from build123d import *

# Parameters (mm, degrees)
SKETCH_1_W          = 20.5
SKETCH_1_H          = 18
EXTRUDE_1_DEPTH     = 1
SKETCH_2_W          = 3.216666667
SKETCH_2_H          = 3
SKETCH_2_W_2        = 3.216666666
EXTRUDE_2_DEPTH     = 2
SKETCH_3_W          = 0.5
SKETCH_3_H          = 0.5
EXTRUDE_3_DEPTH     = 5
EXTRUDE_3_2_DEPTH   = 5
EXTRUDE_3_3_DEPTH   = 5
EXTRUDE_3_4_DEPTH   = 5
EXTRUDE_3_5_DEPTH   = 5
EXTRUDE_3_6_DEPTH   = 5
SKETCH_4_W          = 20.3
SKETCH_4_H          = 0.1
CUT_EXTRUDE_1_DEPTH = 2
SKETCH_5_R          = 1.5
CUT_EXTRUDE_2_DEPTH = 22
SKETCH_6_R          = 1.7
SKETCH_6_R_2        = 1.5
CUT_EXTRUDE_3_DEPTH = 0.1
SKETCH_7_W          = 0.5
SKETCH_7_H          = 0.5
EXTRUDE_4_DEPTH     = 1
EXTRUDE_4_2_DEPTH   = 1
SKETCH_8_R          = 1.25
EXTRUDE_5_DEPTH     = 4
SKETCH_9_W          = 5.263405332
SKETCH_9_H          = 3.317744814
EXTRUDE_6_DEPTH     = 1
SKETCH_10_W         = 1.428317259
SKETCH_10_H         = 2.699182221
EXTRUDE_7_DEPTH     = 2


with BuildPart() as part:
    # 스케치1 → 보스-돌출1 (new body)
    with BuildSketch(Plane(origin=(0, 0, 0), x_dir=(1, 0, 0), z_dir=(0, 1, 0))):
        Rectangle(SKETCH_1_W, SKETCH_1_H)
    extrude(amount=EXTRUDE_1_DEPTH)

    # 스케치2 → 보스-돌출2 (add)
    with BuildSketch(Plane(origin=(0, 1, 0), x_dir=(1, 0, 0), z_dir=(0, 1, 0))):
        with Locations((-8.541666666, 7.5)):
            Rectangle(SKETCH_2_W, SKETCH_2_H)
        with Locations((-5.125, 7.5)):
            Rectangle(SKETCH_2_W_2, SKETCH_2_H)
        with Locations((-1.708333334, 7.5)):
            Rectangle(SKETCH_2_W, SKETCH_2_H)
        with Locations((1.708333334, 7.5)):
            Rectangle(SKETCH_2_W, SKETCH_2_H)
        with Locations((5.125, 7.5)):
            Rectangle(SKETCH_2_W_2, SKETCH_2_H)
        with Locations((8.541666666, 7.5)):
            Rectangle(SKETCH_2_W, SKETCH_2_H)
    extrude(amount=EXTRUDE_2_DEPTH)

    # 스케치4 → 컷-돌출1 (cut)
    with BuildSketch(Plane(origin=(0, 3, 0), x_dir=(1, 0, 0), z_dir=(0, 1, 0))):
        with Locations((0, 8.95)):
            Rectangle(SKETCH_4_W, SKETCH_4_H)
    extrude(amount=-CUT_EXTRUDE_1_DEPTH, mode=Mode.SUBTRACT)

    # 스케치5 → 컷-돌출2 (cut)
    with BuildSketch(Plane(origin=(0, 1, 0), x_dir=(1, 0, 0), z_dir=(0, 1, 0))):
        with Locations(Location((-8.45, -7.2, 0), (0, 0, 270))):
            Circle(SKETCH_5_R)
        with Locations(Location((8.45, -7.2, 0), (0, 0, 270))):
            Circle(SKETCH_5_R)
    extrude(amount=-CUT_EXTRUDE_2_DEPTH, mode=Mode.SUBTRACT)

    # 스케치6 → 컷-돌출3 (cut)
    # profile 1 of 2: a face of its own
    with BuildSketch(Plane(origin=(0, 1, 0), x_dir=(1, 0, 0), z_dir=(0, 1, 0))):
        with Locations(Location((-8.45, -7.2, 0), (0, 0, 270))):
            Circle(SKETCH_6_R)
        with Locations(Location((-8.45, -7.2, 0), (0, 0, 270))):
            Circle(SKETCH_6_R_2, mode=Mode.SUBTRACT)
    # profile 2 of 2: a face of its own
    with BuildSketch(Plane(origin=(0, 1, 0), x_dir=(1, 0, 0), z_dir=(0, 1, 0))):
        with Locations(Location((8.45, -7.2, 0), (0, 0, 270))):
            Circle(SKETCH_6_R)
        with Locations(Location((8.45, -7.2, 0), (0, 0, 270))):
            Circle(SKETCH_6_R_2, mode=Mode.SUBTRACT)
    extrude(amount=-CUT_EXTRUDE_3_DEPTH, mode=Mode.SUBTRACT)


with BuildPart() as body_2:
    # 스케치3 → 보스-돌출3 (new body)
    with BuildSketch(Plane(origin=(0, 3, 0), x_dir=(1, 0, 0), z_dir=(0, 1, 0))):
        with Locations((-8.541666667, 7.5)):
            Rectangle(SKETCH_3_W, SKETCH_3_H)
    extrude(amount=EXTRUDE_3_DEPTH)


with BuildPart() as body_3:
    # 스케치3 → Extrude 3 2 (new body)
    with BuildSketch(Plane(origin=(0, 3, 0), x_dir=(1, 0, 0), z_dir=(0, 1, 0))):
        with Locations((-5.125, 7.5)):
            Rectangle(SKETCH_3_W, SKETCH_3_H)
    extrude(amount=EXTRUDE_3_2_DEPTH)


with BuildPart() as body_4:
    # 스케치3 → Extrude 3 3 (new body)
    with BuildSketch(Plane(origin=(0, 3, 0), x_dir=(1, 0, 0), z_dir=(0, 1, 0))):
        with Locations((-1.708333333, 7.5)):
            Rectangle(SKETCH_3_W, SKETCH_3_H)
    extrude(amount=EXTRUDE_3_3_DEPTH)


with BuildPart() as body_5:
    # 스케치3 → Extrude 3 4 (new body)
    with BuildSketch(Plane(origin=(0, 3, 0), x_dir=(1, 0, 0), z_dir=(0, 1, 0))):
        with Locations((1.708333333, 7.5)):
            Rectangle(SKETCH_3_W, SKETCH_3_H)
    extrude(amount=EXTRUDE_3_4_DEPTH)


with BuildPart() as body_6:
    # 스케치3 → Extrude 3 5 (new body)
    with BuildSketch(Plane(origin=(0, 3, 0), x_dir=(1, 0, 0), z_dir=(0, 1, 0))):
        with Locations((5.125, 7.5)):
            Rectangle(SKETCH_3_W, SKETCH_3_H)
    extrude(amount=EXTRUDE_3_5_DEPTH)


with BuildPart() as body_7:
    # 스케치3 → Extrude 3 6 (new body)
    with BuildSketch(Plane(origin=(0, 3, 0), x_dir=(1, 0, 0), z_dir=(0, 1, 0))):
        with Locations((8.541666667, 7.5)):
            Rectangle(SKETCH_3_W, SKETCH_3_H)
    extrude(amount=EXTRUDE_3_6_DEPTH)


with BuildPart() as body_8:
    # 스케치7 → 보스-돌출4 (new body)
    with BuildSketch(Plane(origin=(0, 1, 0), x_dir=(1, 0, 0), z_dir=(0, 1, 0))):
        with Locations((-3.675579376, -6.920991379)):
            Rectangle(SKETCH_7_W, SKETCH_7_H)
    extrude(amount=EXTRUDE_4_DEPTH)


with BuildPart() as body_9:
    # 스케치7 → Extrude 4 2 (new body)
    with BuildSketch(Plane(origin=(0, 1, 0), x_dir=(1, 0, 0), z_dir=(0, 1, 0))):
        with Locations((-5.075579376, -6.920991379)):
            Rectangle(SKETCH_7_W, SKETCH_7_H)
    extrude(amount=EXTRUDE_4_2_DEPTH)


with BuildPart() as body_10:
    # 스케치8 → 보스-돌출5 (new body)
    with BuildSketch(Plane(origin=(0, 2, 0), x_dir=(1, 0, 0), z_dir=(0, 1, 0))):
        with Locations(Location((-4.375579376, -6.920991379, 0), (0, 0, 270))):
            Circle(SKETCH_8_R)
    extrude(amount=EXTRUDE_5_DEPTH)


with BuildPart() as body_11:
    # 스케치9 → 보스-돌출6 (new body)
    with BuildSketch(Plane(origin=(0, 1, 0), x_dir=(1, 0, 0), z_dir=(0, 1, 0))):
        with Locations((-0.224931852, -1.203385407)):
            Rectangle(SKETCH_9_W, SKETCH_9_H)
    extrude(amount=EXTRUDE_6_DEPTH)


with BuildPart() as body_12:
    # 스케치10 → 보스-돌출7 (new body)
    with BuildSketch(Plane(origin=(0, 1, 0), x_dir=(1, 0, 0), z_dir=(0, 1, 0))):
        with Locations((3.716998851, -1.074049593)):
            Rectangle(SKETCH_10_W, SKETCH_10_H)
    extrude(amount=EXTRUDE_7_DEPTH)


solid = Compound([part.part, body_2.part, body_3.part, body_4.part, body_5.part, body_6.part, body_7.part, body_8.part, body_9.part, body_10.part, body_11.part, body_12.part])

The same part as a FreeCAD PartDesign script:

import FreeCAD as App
import Part
import Sketcher
from FreeCAD import Vector
Q = App.Units.Quantity


def add_polygon(sketch, points):
    """Adds a closed chain of lines whose ends are joined by coincident constraints."""
    first, n = sketch.GeometryCount, len(points)
    for a, b in zip(points, points[1:] + points[:1]):
        sketch.addGeometry(Part.LineSegment(App.Vector(*a, 0), App.Vector(*b, 0)), False)
    for i in range(n):
        sketch.addConstraint(Sketcher.Constraint("Coincident", first + i, 2, first + (i + 1) % n, 1))

doc = App.newDocument("Part")
body = doc.addObject("PartDesign::Body", "Body")

# Sketch on XZ plane
sketch1 = body.newObject("Sketcher::SketchObject", "Sketch")
sketch1.AttachmentSupport = (doc.getObject("XZ_Plane"), [""])
sketch1.MapMode = "FlatFace"
add_polygon(sketch1, [(-10, -9), (-10, 9), (10, 9), (10, -9)])  # lines 0-3
sketch1.addConstraint(Sketcher.Constraint("Vertical", 0))
sketch1.addConstraint(Sketcher.Constraint("Horizontal", 1))
sketch1.addConstraint(Sketcher.Constraint("Vertical", 2))
sketch1.addConstraint(Sketcher.Constraint("Horizontal", 3))
sketch1.addConstraint(Sketcher.Constraint("Symmetric", 0, 2, 2, 2, -1, 1))
sketch1.addConstraint(Sketcher.Constraint("DistanceY", 0, 1, 0, 2, Q("18 mm")))
sketch1.addConstraint(Sketcher.Constraint("DistanceX", 1, 1, 1, 2, Q("20.5 mm")))
pad1 = body.newObject("PartDesign::Pad", "Pad")
pad1.Profile = sketch1
pad1.Length = 1
pad1.Reversed = True

# Sketch on XZ plane
sketch2 = body.newObject("Sketcher::SketchObject", "Sketch001")
sketch2.AttachmentSupport = (doc.getObject("XZ_Plane"), [""])
sketch2.MapMode = "FlatFace"
sketch2.AttachmentOffset = App.Placement(Vector(0, 0, -1), App.Rotation())
add_polygon(sketch2, [(-10.2, -9), (-10.2, -6), (-6.9, -6), (-6.9, -9)])  # lines 0-3
add_polygon(sketch2, [(-6.7, -9), (-6.7, -6), (-3.5, -6), (-3.5, -9)])  # lines 4-7
add_polygon(sketch2, [(-3.3, -9), (-3.3, -6), (-0.1, -6), (-0.1, -9)])  # lines 8-11
add_polygon(sketch2, [(0.1, -9), (0.1, -6), (3.3, -6), (3.3, -9)])  # lines 12-15
add_polygon(sketch2, [(3.5, -9), (3.5, -6), (6.7, -6), (6.7, -9)])  # lines 16-19
add_polygon(sketch2, [(6.9, -9), (6.9, -6), (10.2, -6), (10.2, -9)])  # lines 20-23
sketch2.addConstraint(Sketcher.Constraint("Vertical", 0))
sketch2.addConstraint(Sketcher.Constraint("Horizontal", 1))
sketch2.addConstraint(Sketcher.Constraint("Vertical", 2))
sketch2.addConstraint(Sketcher.Constraint("Horizontal", 3))
sketch2.addConstraint(Sketcher.Constraint("Vertical", 4))
sketch2.addConstraint(Sketcher.Constraint("Horizontal", 5))
sketch2.addConstraint(Sketcher.Constraint("Vertical", 6))
sketch2.addConstraint(Sketcher.Constraint("Horizontal", 7))
sketch2.addConstraint(Sketcher.Constraint("Vertical", 8))
sketch2.addConstraint(Sketcher.Constraint("Horizontal", 9))
sketch2.addConstraint(Sketcher.Constraint("Vertical", 10))
sketch2.addConstraint(Sketcher.Constraint("Horizontal", 11))
sketch2.addConstraint(Sketcher.Constraint("Vertical", 12))
sketch2.addConstraint(Sketcher.Constraint("Horizontal", 13))
sketch2.addConstraint(Sketcher.Constraint("Vertical", 14))
sketch2.addConstraint(Sketcher.Constraint("Horizontal", 15))
sketch2.addConstraint(Sketcher.Constraint("Vertical", 16))
sketch2.addConstraint(Sketcher.Constraint("Horizontal", 17))
sketch2.addConstraint(Sketcher.Constraint("Vertical", 18))
sketch2.addConstraint(Sketcher.Constraint("Horizontal", 19))
sketch2.addConstraint(Sketcher.Constraint("Vertical", 20))
sketch2.addConstraint(Sketcher.Constraint("Horizontal", 21))
sketch2.addConstraint(Sketcher.Constraint("Vertical", 22))
sketch2.addConstraint(Sketcher.Constraint("Horizontal", 23))
sketch2.addConstraint(Sketcher.Constraint("Symmetric", 9, 2, 12, 2, -2))
sketch2.addConstraint(Sketcher.Constraint("Symmetric", 11, 2, 14, 2, -2))
sketch2.addConstraint(Sketcher.Constraint("Symmetric", 5, 2, 16, 2, -2))
sketch2.addConstraint(Sketcher.Constraint("Symmetric", 7, 2, 18, 2, -2))
sketch2.addConstraint(Sketcher.Constraint("Symmetric", 1, 2, 20, 2, -2))
sketch2.addConstraint(Sketcher.Constraint("Symmetric", 3, 2, 22, 2, -2))
sketch2.addConstraint(Sketcher.Constraint("Horizontal", 1, 2, 4, 2))
sketch2.addConstraint(Sketcher.Constraint("Horizontal", 3, 2, 6, 2))
sketch2.addConstraint(Sketcher.Constraint("Horizontal", 5, 2, 8, 2))
sketch2.addConstraint(Sketcher.Constraint("Horizontal", 7, 2, 10, 2))
sketch2.addConstraint(Sketcher.Constraint("Equal", 3, 5))
sketch2.addConstraint(Sketcher.Constraint("Equal", 7, 9))
sketch2.addConstraint(Sketcher.Constraint("DistanceY", 0, 1, 0, 2, Q("3 mm")))
sketch2.addConstraint(Sketcher.Constraint("DistanceY", 0, 2, -1, 1, Q("6 mm")))
sketch2.addConstraint(Sketcher.Constraint("DistanceX", 9, 2, -1, 1, Q("0.1 mm")))
sketch2.addConstraint(Sketcher.Constraint("DistanceX", 1, 2, 4, 2, Q("0.2 mm")))
sketch2.addConstraint(Sketcher.Constraint("DistanceX", 5, 2, 8, 2, Q("0.2 mm")))
sketch2.addConstraint(Sketcher.Constraint("DistanceX", 0, 2, -1, 1, Q("10.15 mm")))
pad2 = body.newObject("PartDesign::Pad", "Pad001")
pad2.Profile = sketch2
pad2.Length = 2
pad2.Reversed = True

# Sketch on XZ plane
sketch3 = body.newObject("Sketcher::SketchObject", "Sketch002")
sketch3.AttachmentSupport = (doc.getObject("XZ_Plane"), [""])
sketch3.MapMode = "FlatFace"
sketch3.AttachmentOffset = App.Placement(Vector(0, 0, -3), App.Rotation())
add_polygon(sketch3, [(-10.15, -9), (-10.15, -8.9), (10.15, -8.9), (10.15, -9)])  # lines 0-3
sketch3.addConstraint(Sketcher.Constraint("Vertical", 0))
sketch3.addConstraint(Sketcher.Constraint("Horizontal", 1))
sketch3.addConstraint(Sketcher.Constraint("Vertical", 2))
sketch3.addConstraint(Sketcher.Constraint("Horizontal", 3))
sketch3.addConstraint(Sketcher.Constraint("DistanceX", 1, 1, 1, 2, Q("20.3 mm")))
sketch3.addConstraint(Sketcher.Constraint("DistanceY", 0, 1, 0, 2, Q("0.1 mm")))
sketch3.addConstraint(Sketcher.Constraint("DistanceY", 2, 2, -1, 1, Q("9 mm")))
sketch3.addConstraint(Sketcher.Constraint("DistanceX", 0, 2, -1, 1, Q("10.15 mm")))
pocket1 = body.newObject("PartDesign::Pocket", "Pocket")
pocket1.Profile = sketch3
pocket1.Length = 2
pocket1.Reversed = True

# Sketch on XZ plane
sketch4 = body.newObject("Sketcher::SketchObject", "Sketch003")
sketch4.AttachmentSupport = (doc.getObject("XZ_Plane"), [""])
sketch4.MapMode = "FlatFace"
sketch4.AttachmentOffset = App.Placement(Vector(0, 0, -1), App.Rotation())
sketch4.addGeometry(Part.Circle(Vector(-8.4, 7.2, 0), Vector(0, 0, 1), 1.5), False)
sketch4.addGeometry(Part.Circle(Vector(8.4, 7.2, 0), Vector(0, 0, 1), 1.5), False)
sketch4.addConstraint(Sketcher.Constraint("Equal", 0, 1))
sketch4.addConstraint(Sketcher.Constraint("Symmetric", 0, 3, 1, 3, -2))
sketch4.addConstraint(Sketcher.Constraint("Diameter", 0, Q("3 mm")))
sketch4.addConstraint(Sketcher.Constraint("DistanceY", -1, 1, 0, 3, Q("7.2 mm")))
sketch4.addConstraint(Sketcher.Constraint("DistanceX", 0, 3, 1, 3, Q("16.9 mm")))
pocket2 = body.newObject("PartDesign::Pocket", "Pocket001")
pocket2.Profile = sketch4
pocket2.Length = 22
pocket2.Reversed = True

# Sketch on XZ plane
sketch5 = body.newObject("Sketcher::SketchObject", "Sketch004")
sketch5.AttachmentSupport = (doc.getObject("XZ_Plane"), [""])
sketch5.MapMode = "FlatFace"
sketch5.AttachmentOffset = App.Placement(Vector(0, 0, -1), App.Rotation())
sketch5.addGeometry(Part.Circle(Vector(-8.4, 7.2, 0), Vector(0, 0, 1), 1.7), False)
sketch5.addGeometry(Part.Circle(Vector(-8.4, 7.2, 0), Vector(0, 0, 1), 1.5), False)
sketch5.addGeometry(Part.Circle(Vector(8.4, 7.2, 0), Vector(0, 0, 1), 1.7), False)
sketch5.addGeometry(Part.Circle(Vector(8.4, 7.2, 0), Vector(0, 0, 1), 1.5), False)
sketch5.addConstraint(Sketcher.Constraint("Coincident", 1, 3, 0, 3))
sketch5.addConstraint(Sketcher.Constraint("Coincident", 3, 3, 2, 3))
sketch5.addConstraint(Sketcher.Constraint("Equal", 0, 2))
sketch5.addConstraint(Sketcher.Constraint("Equal", 1, 3))
sketch5.addConstraint(Sketcher.Constraint("Symmetric", 0, 3, 2, 3, -2))
sketch5.addConstraint(Sketcher.Constraint("Diameter", 1, Q("3 mm")))
sketch5.addConstraint(Sketcher.Constraint("Diameter", 0, Q("3.4 mm")))
sketch5.addConstraint(Sketcher.Constraint("DistanceY", -1, 1, 0, 3, Q("7.2 mm")))
sketch5.addConstraint(Sketcher.Constraint("DistanceX", 0, 3, 2, 3, Q("16.9 mm")))
pocket3 = body.newObject("PartDesign::Pocket", "Pocket002")
pocket3.Profile = sketch5
pocket3.Length = 0.1
pocket3.Reversed = True
body2 = doc.addObject("PartDesign::Body", "Body001")

# Sketch on XZ plane
sketch6 = body2.newObject("Sketcher::SketchObject", "Sketch005")
sketch6.AttachmentSupport = (doc.getObject("XZ_Plane001"), [""])
sketch6.MapMode = "FlatFace"
sketch6.AttachmentOffset = App.Placement(Vector(0, 0, -3), App.Rotation())
add_polygon(sketch6, [(-8.8, -7.8), (-8.8, -7.2), (-8.3, -7.2), (-8.3, -7.8)])  # lines 0-3
sketch6.addConstraint(Sketcher.Constraint("Vertical", 0))
sketch6.addConstraint(Sketcher.Constraint("Horizontal", 1))
sketch6.addConstraint(Sketcher.Constraint("Vertical", 2))
sketch6.addConstraint(Sketcher.Constraint("Horizontal", 3))
sketch6.addConstraint(Sketcher.Constraint("Equal", 3, 0))
sketch6.addConstraint(Sketcher.Constraint("DistanceX", 1, 1, 1, 2, Q("0.5 mm")))
sketch6.addConstraint(Sketcher.Constraint("DistanceY", 0, 2, -1, 1, Q("7.25 mm")))
sketch6.addConstraint(Sketcher.Constraint("DistanceX", 0, 2, -1, 1, Q("8.791667 mm")))
pad3 = body2.newObject("PartDesign::Pad", "Pad002")
pad3.Profile = sketch6
pad3.Length = 5
pad3.Reversed = True
body3 = doc.addObject("PartDesign::Body", "Body002")

# Sketch on XZ plane
sketch7 = body3.newObject("Sketcher::SketchObject", "Sketch006")
sketch7.AttachmentSupport = (doc.getObject("XZ_Plane002"), [""])
sketch7.MapMode = "FlatFace"
sketch7.AttachmentOffset = App.Placement(Vector(0, 0, -3), App.Rotation())
add_polygon(sketch7, [(-5.4, -7.8), (-5.4, -7.2), (-4.9, -7.2), (-4.9, -7.8)])  # lines 0-3
sketch7.addConstraint(Sketcher.Constraint("Vertical", 0))
sketch7.addConstraint(Sketcher.Constraint("Horizontal", 1))
sketch7.addConstraint(Sketcher.Constraint("Vertical", 2))
sketch7.addConstraint(Sketcher.Constraint("Horizontal", 3))
sketch7.addConstraint(Sketcher.Constraint("Equal", 3, 0))
sketch7.addConstraint(Sketcher.Constraint("DistanceX", 1, 1, 1, 2, Q("0.5 mm")))
sketch7.addConstraint(Sketcher.Constraint("DistanceY", 0, 2, -1, 1, Q("7.25 mm")))
sketch7.addConstraint(Sketcher.Constraint("DistanceX", 0, 2, -1, 1, Q("5.375 mm")))
pad4 = body3.newObject("PartDesign::Pad", "Pad003")
pad4.Profile = sketch7
pad4.Length = 5
pad4.Reversed = True
body4 = doc.addObject("PartDesign::Body", "Body003")

# Sketch on XZ plane
sketch8 = body4.newObject("Sketcher::SketchObject", "Sketch007")
sketch8.AttachmentSupport = (doc.getObject("XZ_Plane003"), [""])
sketch8.MapMode = "FlatFace"
sketch8.AttachmentOffset = App.Placement(Vector(0, 0, -3), App.Rotation())
add_polygon(sketch8, [(-2, -7.8), (-2, -7.2), (-1.5, -7.2), (-1.5, -7.8)])  # lines 0-3
sketch8.addConstraint(Sketcher.Constraint("Vertical", 0))
sketch8.addConstraint(Sketcher.Constraint("Horizontal", 1))
sketch8.addConstraint(Sketcher.Constraint("Vertical", 2))
sketch8.addConstraint(Sketcher.Constraint("Horizontal", 3))
sketch8.addConstraint(Sketcher.Constraint("Equal", 3, 0))
sketch8.addConstraint(Sketcher.Constraint("DistanceX", 1, 1, 1, 2, Q("0.5 mm")))
sketch8.addConstraint(Sketcher.Constraint("DistanceY", 0, 2, -1, 1, Q("7.25 mm")))
sketch8.addConstraint(Sketcher.Constraint("DistanceX", 0, 2, -1, 1, Q("1.958333 mm")))
pad5 = body4.newObject("PartDesign::Pad", "Pad004")
pad5.Profile = sketch8
pad5.Length = 5
pad5.Reversed = True
body5 = doc.addObject("PartDesign::Body", "Body004")

# Sketch on XZ plane
sketch9 = body5.newObject("Sketcher::SketchObject", "Sketch008")
sketch9.AttachmentSupport = (doc.getObject("XZ_Plane004"), [""])
sketch9.MapMode = "FlatFace"
sketch9.AttachmentOffset = App.Placement(Vector(0, 0, -3), App.Rotation())
add_polygon(sketch9, [(1.5, -7.8), (1.5, -7.2), (2, -7.2), (2, -7.8)])  # lines 0-3
sketch9.addConstraint(Sketcher.Constraint("Vertical", 0))
sketch9.addConstraint(Sketcher.Constraint("Horizontal", 1))
sketch9.addConstraint(Sketcher.Constraint("Vertical", 2))
sketch9.addConstraint(Sketcher.Constraint("Horizontal", 3))
sketch9.addConstraint(Sketcher.Constraint("Equal", 3, 0))
sketch9.addConstraint(Sketcher.Constraint("DistanceX", 1, 1, 1, 2, Q("0.5 mm")))
sketch9.addConstraint(Sketcher.Constraint("DistanceY", 0, 2, -1, 1, Q("7.25 mm")))
sketch9.addConstraint(Sketcher.Constraint("DistanceX", -1, 1, 0, 2, Q("1.458333 mm")))
pad6 = body5.newObject("PartDesign::Pad", "Pad005")
pad6.Profile = sketch9
pad6.Length = 5
pad6.Reversed = True
body6 = doc.addObject("PartDesign::Body", "Body005")

# Sketch on XZ plane
sketch10 = body6.newObject("Sketcher::SketchObject", "Sketch009")
sketch10.AttachmentSupport = (doc.getObject("XZ_Plane005"), [""])
sketch10.MapMode = "FlatFace"
sketch10.AttachmentOffset = App.Placement(Vector(0, 0, -3), App.Rotation())
add_polygon(sketch10, [(4.9, -7.8), (4.9, -7.2), (5.4, -7.2), (5.4, -7.8)])  # lines 0-3
sketch10.addConstraint(Sketcher.Constraint("Vertical", 0))
sketch10.addConstraint(Sketcher.Constraint("Horizontal", 1))
sketch10.addConstraint(Sketcher.Constraint("Vertical", 2))
sketch10.addConstraint(Sketcher.Constraint("Horizontal", 3))
sketch10.addConstraint(Sketcher.Constraint("Equal", 3, 0))
sketch10.addConstraint(Sketcher.Constraint("DistanceX", 1, 1, 1, 2, Q("0.5 mm")))
sketch10.addConstraint(Sketcher.Constraint("DistanceY", 0, 2, -1, 1, Q("7.25 mm")))
sketch10.addConstraint(Sketcher.Constraint("DistanceX", -1, 1, 0, 2, Q("4.875 mm")))
pad7 = body6.newObject("PartDesign::Pad", "Pad006")
pad7.Profile = sketch10
pad7.Length = 5
pad7.Reversed = True
body7 = doc.addObject("PartDesign::Body", "Body006")

# Sketch on XZ plane
sketch11 = body7.newObject("Sketcher::SketchObject", "Sketch010")
sketch11.AttachmentSupport = (doc.getObject("XZ_Plane006"), [""])
sketch11.MapMode = "FlatFace"
sketch11.AttachmentOffset = App.Placement(Vector(0, 0, -3), App.Rotation())
add_polygon(sketch11, [(8.3, -7.8), (8.3, -7.2), (8.8, -7.2), (8.8, -7.8)])  # lines 0-3
sketch11.addConstraint(Sketcher.Constraint("Vertical", 0))
sketch11.addConstraint(Sketcher.Constraint("Horizontal", 1))
sketch11.addConstraint(Sketcher.Constraint("Vertical", 2))
sketch11.addConstraint(Sketcher.Constraint("Horizontal", 3))
sketch11.addConstraint(Sketcher.Constraint("Equal", 3, 0))
sketch11.addConstraint(Sketcher.Constraint("DistanceX", 1, 1, 1, 2, Q("0.5 mm")))
sketch11.addConstraint(Sketcher.Constraint("DistanceY", 0, 2, -1, 1, Q("7.25 mm")))
sketch11.addConstraint(Sketcher.Constraint("DistanceX", -1, 1, 0, 2, Q("8.291667 mm")))
pad8 = body7.newObject("PartDesign::Pad", "Pad007")
pad8.Profile = sketch11
pad8.Length = 5
pad8.Reversed = True
body8 = doc.addObject("PartDesign::Body", "Body007")

# Sketch on XZ plane
sketch12 = body8.newObject("Sketcher::SketchObject", "Sketch011")
sketch12.AttachmentSupport = (doc.getObject("XZ_Plane007"), [""])
sketch12.MapMode = "FlatFace"
sketch12.AttachmentOffset = App.Placement(Vector(0, 0, -1), App.Rotation())
add_polygon(sketch12, [(-3.9, 6.7), (-3.9, 7.2), (-3.4, 7.2), (-3.4, 6.7)])  # lines 0-3
sketch12.addConstraint(Sketcher.Constraint("Vertical", 0))
sketch12.addConstraint(Sketcher.Constraint("Horizontal", 1))
sketch12.addConstraint(Sketcher.Constraint("Vertical", 2))
sketch12.addConstraint(Sketcher.Constraint("Horizontal", 3))
sketch12.addConstraint(Sketcher.Constraint("Equal", 3, 0))
sketch12.addConstraint(Sketcher.Constraint("DistanceX", 1, 1, 1, 2, Q("0.5 mm")))
sketch12.addConstraint(Sketcher.Constraint("DistanceX", 0, 2, -1, 1, Q("3.925579 mm")))
sketch12.addConstraint(Sketcher.Constraint("DistanceY", -1, 1, 0, 2, Q("7.170991 mm")))
pad9 = body8.newObject("PartDesign::Pad", "Pad008")
pad9.Profile = sketch12
pad9.Length = 1
pad9.Reversed = True
body9 = doc.addObject("PartDesign::Body", "Body008")

# Sketch on XZ plane
sketch13 = body9.newObject("Sketcher::SketchObject", "Sketch012")
sketch13.AttachmentSupport = (doc.getObject("XZ_Plane008"), [""])
sketch13.MapMode = "FlatFace"
sketch13.AttachmentOffset = App.Placement(Vector(0, 0, -1), App.Rotation())
add_polygon(sketch13, [(-5.3, 6.7), (-5.3, 7.2), (-4.8, 7.2), (-4.8, 6.7)])  # lines 0-3
sketch13.addConstraint(Sketcher.Constraint("Vertical", 0))
sketch13.addConstraint(Sketcher.Constraint("Horizontal", 1))
sketch13.addConstraint(Sketcher.Constraint("Vertical", 2))
sketch13.addConstraint(Sketcher.Constraint("Horizontal", 3))
sketch13.addConstraint(Sketcher.Constraint("Equal", 3, 0))
sketch13.addConstraint(Sketcher.Constraint("DistanceX", 1, 1, 1, 2, Q("0.5 mm")))
sketch13.addConstraint(Sketcher.Constraint("DistanceX", 0, 2, -1, 1, Q("5.325579 mm")))
sketch13.addConstraint(Sketcher.Constraint("DistanceY", -1, 1, 0, 2, Q("7.170991 mm")))
pad10 = body9.newObject("PartDesign::Pad", "Pad009")
pad10.Profile = sketch13
pad10.Length = 1
pad10.Reversed = True
body10 = doc.addObject("PartDesign::Body", "Body009")

# Sketch on XZ plane
sketch14 = body10.newObject("Sketcher::SketchObject", "Sketch013")
sketch14.AttachmentSupport = (doc.getObject("XZ_Plane009"), [""])
sketch14.MapMode = "FlatFace"
sketch14.AttachmentOffset = App.Placement(Vector(0, 0, -2), App.Rotation())
sketch14.addGeometry(Part.Circle(Vector(-4.4, 6.9, 0), Vector(0, 0, 1), 1.2), False)
sketch14.addConstraint(Sketcher.Constraint("Diameter", 0, Q("2.5 mm")))
sketch14.addConstraint(Sketcher.Constraint("DistanceX", 0, 3, -1, 1, Q("4.375579 mm")))
sketch14.addConstraint(Sketcher.Constraint("DistanceY", -1, 1, 0, 3, Q("6.920991 mm")))
pad11 = body10.newObject("PartDesign::Pad", "Pad010")
pad11.Profile = sketch14
pad11.Length = 4
pad11.Reversed = True
body11 = doc.addObject("PartDesign::Body", "Body010")

# Sketch on XZ plane
sketch15 = body11.newObject("Sketcher::SketchObject", "Sketch014")
sketch15.AttachmentSupport = (doc.getObject("XZ_Plane010"), [""])
sketch15.MapMode = "FlatFace"
sketch15.AttachmentOffset = App.Placement(Vector(0, 0, -1), App.Rotation())
add_polygon(sketch15, [(-2.9, -0.5), (-2.9, 2.9), (2.4, 2.9), (2.4, -0.5)])  # lines 0-3
sketch15.addConstraint(Sketcher.Constraint("Vertical", 0))
sketch15.addConstraint(Sketcher.Constraint("Horizontal", 1))
sketch15.addConstraint(Sketcher.Constraint("Vertical", 2))
sketch15.addConstraint(Sketcher.Constraint("Horizontal", 3))
sketch15.addConstraint(Sketcher.Constraint("DistanceX", 1, 1, 1, 2, Q("5.263405 mm")))
sketch15.addConstraint(Sketcher.Constraint("DistanceY", 0, 1, 0, 2, Q("3.317745 mm")))
sketch15.addConstraint(Sketcher.Constraint("DistanceX", -1, 1, 1, 2, Q("2.406771 mm")))
sketch15.addConstraint(Sketcher.Constraint("DistanceY", -1, 1, 0, 2, Q("2.862258 mm")))
pad12 = body11.newObject("PartDesign::Pad", "Pad011")
pad12.Profile = sketch15
pad12.Length = 1
pad12.Reversed = True
body12 = doc.addObject("PartDesign::Body", "Body011")

# Sketch on XZ plane
sketch16 = body12.newObject("Sketcher::SketchObject", "Sketch015")
sketch16.AttachmentSupport = (doc.getObject("XZ_Plane011"), [""])
sketch16.MapMode = "FlatFace"
sketch16.AttachmentOffset = App.Placement(Vector(0, 0, -1), App.Rotation())
add_polygon(sketch16, [(3, -0.3), (3, 2.4), (4.4, 2.4), (4.4, -0.3)])  # lines 0-3
sketch16.addConstraint(Sketcher.Constraint("Vertical", 0))
sketch16.addConstraint(Sketcher.Constraint("Horizontal", 1))
sketch16.addConstraint(Sketcher.Constraint("Vertical", 2))
sketch16.addConstraint(Sketcher.Constraint("Horizontal", 3))
sketch16.addConstraint(Sketcher.Constraint("DistanceX", 1, 1, 1, 2, Q("1.428317 mm")))
sketch16.addConstraint(Sketcher.Constraint("DistanceY", 0, 1, 0, 2, Q("2.699182 mm")))
sketch16.addConstraint(Sketcher.Constraint("DistanceX", -1, 1, 0, 2, Q("3.00284 mm")))
sketch16.addConstraint(Sketcher.Constraint("DistanceY", -1, 1, 0, 2, Q("2.423641 mm")))
pad13 = body12.newObject("PartDesign::Pad", "Pad012")
pad13.Profile = sketch16
pad13.Length = 2
pad13.Reversed = True

doc.recompute()
